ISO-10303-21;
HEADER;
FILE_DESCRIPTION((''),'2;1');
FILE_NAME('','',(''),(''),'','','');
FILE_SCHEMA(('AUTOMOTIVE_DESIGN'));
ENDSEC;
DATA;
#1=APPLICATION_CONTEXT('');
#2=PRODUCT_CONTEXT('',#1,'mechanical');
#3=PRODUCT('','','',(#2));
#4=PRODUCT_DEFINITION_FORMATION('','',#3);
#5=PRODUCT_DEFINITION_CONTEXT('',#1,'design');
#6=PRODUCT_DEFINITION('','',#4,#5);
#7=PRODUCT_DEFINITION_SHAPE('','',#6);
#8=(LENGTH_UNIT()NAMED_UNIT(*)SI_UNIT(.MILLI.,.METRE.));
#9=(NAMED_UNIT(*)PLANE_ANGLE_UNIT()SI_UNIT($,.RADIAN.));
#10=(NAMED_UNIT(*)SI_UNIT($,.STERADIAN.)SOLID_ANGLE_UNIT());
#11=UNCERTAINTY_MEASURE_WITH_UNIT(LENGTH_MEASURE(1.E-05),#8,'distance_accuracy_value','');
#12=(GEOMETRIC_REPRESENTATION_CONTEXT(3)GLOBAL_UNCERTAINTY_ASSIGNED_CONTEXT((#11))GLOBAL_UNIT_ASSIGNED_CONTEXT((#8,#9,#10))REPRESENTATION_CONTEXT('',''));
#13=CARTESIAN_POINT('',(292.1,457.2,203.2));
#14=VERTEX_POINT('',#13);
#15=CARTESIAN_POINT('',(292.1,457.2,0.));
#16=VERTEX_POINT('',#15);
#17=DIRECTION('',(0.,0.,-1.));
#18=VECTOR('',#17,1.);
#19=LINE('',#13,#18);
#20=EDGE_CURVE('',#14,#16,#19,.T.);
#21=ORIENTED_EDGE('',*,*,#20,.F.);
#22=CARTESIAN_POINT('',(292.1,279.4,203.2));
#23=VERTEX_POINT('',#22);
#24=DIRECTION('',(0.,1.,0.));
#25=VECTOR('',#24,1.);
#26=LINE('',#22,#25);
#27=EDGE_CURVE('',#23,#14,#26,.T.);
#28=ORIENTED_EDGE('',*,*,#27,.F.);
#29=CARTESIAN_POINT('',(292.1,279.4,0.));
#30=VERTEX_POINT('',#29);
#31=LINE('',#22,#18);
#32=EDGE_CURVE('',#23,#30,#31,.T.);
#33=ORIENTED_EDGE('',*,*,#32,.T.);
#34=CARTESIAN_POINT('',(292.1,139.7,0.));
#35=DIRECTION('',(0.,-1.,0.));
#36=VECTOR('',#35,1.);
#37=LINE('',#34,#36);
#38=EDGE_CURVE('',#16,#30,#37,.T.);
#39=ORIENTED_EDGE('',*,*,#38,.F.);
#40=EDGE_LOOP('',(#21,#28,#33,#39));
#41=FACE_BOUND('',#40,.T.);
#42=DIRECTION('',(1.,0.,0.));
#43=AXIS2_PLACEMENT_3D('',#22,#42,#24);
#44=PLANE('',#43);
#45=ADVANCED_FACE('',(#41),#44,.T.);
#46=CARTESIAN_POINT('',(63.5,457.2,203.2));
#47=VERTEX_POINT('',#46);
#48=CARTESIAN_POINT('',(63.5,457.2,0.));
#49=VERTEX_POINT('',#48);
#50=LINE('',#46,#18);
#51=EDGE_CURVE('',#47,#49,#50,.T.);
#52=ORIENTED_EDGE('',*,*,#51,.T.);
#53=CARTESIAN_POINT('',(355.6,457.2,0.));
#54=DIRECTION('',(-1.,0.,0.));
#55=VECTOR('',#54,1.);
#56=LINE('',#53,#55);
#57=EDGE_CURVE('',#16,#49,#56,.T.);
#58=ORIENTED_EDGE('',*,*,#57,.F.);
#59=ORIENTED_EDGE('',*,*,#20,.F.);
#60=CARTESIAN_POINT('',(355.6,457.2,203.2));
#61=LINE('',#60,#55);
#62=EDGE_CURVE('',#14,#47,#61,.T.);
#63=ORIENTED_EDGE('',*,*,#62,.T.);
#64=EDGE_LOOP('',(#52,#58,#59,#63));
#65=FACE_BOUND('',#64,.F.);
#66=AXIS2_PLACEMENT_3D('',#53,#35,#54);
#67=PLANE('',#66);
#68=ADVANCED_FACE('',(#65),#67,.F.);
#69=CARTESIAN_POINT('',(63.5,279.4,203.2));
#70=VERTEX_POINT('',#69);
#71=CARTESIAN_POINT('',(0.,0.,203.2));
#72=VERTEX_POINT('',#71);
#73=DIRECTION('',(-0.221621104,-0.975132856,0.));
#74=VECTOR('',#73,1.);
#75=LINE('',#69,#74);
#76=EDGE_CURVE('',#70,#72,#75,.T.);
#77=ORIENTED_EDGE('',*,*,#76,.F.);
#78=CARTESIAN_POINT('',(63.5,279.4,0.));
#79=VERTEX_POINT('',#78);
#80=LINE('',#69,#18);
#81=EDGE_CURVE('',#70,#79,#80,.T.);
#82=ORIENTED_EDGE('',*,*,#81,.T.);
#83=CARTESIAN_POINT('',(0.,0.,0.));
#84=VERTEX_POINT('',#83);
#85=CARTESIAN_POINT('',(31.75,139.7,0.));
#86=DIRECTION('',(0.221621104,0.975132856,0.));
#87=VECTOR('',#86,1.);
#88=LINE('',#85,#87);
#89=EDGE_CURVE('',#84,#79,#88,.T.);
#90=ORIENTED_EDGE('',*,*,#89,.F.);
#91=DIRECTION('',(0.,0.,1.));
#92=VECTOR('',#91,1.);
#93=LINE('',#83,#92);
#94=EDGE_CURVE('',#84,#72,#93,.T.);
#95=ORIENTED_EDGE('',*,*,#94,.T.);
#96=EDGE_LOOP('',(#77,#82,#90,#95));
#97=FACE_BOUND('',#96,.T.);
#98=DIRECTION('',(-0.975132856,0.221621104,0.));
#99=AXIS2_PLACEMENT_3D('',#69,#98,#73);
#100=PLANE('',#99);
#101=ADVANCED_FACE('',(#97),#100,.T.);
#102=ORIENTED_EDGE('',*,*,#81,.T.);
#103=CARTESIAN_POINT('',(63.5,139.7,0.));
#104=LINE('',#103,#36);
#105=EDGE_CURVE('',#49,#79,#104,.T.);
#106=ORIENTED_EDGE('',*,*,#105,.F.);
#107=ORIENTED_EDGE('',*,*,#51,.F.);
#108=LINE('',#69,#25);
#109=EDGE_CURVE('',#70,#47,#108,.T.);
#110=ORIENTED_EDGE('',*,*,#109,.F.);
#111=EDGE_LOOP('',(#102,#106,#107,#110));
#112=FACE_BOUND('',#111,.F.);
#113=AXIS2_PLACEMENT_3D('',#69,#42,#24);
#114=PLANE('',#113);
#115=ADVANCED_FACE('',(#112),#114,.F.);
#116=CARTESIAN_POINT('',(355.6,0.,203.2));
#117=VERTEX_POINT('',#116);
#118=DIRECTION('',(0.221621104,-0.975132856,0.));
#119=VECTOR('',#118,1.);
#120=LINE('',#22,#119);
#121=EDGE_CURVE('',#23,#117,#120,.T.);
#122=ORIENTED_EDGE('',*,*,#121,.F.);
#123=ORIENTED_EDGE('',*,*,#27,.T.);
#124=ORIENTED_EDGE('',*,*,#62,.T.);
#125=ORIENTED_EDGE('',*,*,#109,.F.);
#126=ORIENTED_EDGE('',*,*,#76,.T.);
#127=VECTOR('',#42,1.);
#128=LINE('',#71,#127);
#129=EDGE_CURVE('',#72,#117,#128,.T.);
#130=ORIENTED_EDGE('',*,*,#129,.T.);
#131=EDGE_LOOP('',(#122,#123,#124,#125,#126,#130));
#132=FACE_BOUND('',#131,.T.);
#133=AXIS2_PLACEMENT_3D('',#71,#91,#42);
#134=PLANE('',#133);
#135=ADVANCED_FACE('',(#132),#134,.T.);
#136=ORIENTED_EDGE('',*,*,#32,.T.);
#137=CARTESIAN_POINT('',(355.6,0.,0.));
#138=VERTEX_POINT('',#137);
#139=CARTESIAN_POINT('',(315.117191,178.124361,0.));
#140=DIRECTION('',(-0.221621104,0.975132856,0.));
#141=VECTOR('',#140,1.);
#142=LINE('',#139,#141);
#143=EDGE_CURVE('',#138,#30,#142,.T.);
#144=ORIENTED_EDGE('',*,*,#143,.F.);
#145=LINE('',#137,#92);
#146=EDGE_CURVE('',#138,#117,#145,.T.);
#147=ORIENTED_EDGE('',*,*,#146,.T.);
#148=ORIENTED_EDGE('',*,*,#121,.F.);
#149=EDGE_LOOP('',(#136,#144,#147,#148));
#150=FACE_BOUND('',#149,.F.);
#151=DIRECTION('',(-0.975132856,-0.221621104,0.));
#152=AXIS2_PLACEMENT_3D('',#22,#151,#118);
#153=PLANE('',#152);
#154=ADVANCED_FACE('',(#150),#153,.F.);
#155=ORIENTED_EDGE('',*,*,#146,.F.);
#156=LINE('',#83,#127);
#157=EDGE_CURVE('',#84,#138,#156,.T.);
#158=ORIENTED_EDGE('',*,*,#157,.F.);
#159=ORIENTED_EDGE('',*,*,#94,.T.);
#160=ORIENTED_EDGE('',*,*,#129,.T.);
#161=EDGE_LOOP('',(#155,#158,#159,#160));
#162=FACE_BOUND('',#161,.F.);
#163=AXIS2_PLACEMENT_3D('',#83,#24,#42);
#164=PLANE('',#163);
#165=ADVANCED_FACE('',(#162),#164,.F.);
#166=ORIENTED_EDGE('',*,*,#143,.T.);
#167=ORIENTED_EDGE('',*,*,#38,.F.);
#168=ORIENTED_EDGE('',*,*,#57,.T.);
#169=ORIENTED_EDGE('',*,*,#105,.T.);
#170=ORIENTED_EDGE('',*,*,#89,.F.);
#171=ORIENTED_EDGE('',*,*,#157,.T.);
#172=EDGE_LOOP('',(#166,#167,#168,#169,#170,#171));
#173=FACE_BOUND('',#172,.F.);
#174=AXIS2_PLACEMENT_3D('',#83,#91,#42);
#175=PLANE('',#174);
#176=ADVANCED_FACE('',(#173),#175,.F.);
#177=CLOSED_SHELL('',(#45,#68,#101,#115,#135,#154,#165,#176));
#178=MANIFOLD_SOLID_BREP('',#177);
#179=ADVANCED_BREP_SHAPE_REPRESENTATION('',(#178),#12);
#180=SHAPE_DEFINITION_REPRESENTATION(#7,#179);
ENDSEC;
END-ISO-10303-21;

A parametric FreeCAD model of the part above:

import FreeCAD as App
import Part
import Sketcher

V = App.Vector
Q = App.Units.Quantity

doc = App.newDocument("Part")
body = doc.addObject("PartDesign::Body", "Body")

sketch1 = body.newObject("Sketcher::SketchObject", "Sketch")
sketch1.AttachmentSupport = (doc.getObject("XY_Plane"), [""])
sketch1.MapMode = "FlatFace"
sketch1.addGeometry([
    Part.LineSegment(V(0, 457, 0), V(0, 0, 0)),
    Part.LineSegment(V(0, 0, 0), V(356, 0, 0)),
    Part.LineSegment(V(356, 0, 0), V(356, 457, 0)),
    Part.LineSegment(V(356, 457, 0), V(0, 457, 0)),
], False)
sketch1.addConstraint([
    Sketcher.Constraint("Coincident", 0, 2, 1, 1),
    Sketcher.Constraint("Coincident", 1, 2, 2, 1),
    Sketcher.Constraint("Coincident", 2, 2, 3, 1),
    Sketcher.Constraint("Coincident", 3, 2, 0, 1),
    Sketcher.Constraint("Vertical", 0),
    Sketcher.Constraint("Horizontal", 1),
    Sketcher.Constraint("Vertical", 2),
    Sketcher.Constraint("Horizontal", 3),
    Sketcher.Constraint("Coincident", 0, 2, -1, 1),
    Sketcher.Constraint("DistanceX", 1, 1, 1, 2, Q("14 in")),
    Sketcher.Constraint("DistanceY", 0, 2, 0, 1, Q("18 in")),
])
pad1 = body.newObject("PartDesign::Pad", "Pad")
pad1.Profile = sketch1
pad1.Length = Q("8 in")

sketch2 = body.newObject("Sketcher::SketchObject", "Sketch001")
sketch2.AttachmentSupport = (doc.getObject("XY_Plane"), [""])
sketch2.MapMode = "FlatFace"
sketch2.AttachmentOffset = App.Placement(V(0, 0, 8 * 25.4), App.Rotation())
sketch2.addGeometry([
    Part.LineSegment(V(0, 457, 0), V(0, 0, 0)),
    Part.LineSegment(V(0, 0, 0), V(64, 279, 0)),
    Part.LineSegment(V(64, 279, 0), V(64, 457, 0)),
    Part.LineSegment(V(64, 457, 0), V(0, 457, 0)),
    Part.LineSegment(V(292, 279, 0), V(356, 0, 0)),
    Part.LineSegment(V(356, 0, 0), V(356, 457, 0)),
    Part.LineSegment(V(356, 457, 0), V(292, 457, 0)),
    Part.LineSegment(V(292, 457, 0), V(292, 279, 0)),
], False)
sketch2.addConstraint([
    Sketcher.Constraint("Coincident", 0, 2, 1, 1),
    Sketcher.Constraint("Coincident", 1, 2, 2, 1),
    Sketcher.Constraint("Coincident", 2, 2, 3, 1),
    Sketcher.Constraint("Coincident", 3, 2, 0, 1),
    Sketcher.Constraint("Coincident", 4, 2, 5, 1),
    Sketcher.Constraint("Coincident", 5, 2, 6, 1),
    Sketcher.Constraint("Coincident", 6, 2, 7, 1),
    Sketcher.Constraint("Coincident", 7, 2, 4, 1),
    Sketcher.Constraint("Vertical", 0),
    Sketcher.Constraint("Vertical", 2),
    Sketcher.Constraint("Horizontal", 3),
    Sketcher.Constraint("Vertical", 5),
    Sketcher.Constraint("Horizontal", 6),
    Sketcher.Constraint("Vertical", 7),
    Sketcher.Constraint("Coincident", 0, 2, -1, 1),
    Sketcher.Constraint("PointOnObject", 4, 2, -1),
    Sketcher.Constraint("Horizontal", 3, 2, 5, 2),
    Sketcher.Constraint("Horizontal", 1, 2, 7, 2),
    Sketcher.Constraint("Equal", 3, 6),
    Sketcher.Constraint("DistanceY", -1, 1, 1, 2, Q("11 in")),
    Sketcher.Constraint("DistanceX", 2, 2, 6, 2, Q("9 in")),
    Sketcher.Constraint("DistanceY", 0, 2, 0, 1, Q("18 in")),
    Sketcher.Constraint("DistanceX", 3, 2, 3, 1, Q("2.5 in")),
])
pocket1 = body.newObject("PartDesign::Pocket", "Pocket")
pocket1.Profile = sketch2
pocket1.Type = "UpToFirst"

doc.recompute()
